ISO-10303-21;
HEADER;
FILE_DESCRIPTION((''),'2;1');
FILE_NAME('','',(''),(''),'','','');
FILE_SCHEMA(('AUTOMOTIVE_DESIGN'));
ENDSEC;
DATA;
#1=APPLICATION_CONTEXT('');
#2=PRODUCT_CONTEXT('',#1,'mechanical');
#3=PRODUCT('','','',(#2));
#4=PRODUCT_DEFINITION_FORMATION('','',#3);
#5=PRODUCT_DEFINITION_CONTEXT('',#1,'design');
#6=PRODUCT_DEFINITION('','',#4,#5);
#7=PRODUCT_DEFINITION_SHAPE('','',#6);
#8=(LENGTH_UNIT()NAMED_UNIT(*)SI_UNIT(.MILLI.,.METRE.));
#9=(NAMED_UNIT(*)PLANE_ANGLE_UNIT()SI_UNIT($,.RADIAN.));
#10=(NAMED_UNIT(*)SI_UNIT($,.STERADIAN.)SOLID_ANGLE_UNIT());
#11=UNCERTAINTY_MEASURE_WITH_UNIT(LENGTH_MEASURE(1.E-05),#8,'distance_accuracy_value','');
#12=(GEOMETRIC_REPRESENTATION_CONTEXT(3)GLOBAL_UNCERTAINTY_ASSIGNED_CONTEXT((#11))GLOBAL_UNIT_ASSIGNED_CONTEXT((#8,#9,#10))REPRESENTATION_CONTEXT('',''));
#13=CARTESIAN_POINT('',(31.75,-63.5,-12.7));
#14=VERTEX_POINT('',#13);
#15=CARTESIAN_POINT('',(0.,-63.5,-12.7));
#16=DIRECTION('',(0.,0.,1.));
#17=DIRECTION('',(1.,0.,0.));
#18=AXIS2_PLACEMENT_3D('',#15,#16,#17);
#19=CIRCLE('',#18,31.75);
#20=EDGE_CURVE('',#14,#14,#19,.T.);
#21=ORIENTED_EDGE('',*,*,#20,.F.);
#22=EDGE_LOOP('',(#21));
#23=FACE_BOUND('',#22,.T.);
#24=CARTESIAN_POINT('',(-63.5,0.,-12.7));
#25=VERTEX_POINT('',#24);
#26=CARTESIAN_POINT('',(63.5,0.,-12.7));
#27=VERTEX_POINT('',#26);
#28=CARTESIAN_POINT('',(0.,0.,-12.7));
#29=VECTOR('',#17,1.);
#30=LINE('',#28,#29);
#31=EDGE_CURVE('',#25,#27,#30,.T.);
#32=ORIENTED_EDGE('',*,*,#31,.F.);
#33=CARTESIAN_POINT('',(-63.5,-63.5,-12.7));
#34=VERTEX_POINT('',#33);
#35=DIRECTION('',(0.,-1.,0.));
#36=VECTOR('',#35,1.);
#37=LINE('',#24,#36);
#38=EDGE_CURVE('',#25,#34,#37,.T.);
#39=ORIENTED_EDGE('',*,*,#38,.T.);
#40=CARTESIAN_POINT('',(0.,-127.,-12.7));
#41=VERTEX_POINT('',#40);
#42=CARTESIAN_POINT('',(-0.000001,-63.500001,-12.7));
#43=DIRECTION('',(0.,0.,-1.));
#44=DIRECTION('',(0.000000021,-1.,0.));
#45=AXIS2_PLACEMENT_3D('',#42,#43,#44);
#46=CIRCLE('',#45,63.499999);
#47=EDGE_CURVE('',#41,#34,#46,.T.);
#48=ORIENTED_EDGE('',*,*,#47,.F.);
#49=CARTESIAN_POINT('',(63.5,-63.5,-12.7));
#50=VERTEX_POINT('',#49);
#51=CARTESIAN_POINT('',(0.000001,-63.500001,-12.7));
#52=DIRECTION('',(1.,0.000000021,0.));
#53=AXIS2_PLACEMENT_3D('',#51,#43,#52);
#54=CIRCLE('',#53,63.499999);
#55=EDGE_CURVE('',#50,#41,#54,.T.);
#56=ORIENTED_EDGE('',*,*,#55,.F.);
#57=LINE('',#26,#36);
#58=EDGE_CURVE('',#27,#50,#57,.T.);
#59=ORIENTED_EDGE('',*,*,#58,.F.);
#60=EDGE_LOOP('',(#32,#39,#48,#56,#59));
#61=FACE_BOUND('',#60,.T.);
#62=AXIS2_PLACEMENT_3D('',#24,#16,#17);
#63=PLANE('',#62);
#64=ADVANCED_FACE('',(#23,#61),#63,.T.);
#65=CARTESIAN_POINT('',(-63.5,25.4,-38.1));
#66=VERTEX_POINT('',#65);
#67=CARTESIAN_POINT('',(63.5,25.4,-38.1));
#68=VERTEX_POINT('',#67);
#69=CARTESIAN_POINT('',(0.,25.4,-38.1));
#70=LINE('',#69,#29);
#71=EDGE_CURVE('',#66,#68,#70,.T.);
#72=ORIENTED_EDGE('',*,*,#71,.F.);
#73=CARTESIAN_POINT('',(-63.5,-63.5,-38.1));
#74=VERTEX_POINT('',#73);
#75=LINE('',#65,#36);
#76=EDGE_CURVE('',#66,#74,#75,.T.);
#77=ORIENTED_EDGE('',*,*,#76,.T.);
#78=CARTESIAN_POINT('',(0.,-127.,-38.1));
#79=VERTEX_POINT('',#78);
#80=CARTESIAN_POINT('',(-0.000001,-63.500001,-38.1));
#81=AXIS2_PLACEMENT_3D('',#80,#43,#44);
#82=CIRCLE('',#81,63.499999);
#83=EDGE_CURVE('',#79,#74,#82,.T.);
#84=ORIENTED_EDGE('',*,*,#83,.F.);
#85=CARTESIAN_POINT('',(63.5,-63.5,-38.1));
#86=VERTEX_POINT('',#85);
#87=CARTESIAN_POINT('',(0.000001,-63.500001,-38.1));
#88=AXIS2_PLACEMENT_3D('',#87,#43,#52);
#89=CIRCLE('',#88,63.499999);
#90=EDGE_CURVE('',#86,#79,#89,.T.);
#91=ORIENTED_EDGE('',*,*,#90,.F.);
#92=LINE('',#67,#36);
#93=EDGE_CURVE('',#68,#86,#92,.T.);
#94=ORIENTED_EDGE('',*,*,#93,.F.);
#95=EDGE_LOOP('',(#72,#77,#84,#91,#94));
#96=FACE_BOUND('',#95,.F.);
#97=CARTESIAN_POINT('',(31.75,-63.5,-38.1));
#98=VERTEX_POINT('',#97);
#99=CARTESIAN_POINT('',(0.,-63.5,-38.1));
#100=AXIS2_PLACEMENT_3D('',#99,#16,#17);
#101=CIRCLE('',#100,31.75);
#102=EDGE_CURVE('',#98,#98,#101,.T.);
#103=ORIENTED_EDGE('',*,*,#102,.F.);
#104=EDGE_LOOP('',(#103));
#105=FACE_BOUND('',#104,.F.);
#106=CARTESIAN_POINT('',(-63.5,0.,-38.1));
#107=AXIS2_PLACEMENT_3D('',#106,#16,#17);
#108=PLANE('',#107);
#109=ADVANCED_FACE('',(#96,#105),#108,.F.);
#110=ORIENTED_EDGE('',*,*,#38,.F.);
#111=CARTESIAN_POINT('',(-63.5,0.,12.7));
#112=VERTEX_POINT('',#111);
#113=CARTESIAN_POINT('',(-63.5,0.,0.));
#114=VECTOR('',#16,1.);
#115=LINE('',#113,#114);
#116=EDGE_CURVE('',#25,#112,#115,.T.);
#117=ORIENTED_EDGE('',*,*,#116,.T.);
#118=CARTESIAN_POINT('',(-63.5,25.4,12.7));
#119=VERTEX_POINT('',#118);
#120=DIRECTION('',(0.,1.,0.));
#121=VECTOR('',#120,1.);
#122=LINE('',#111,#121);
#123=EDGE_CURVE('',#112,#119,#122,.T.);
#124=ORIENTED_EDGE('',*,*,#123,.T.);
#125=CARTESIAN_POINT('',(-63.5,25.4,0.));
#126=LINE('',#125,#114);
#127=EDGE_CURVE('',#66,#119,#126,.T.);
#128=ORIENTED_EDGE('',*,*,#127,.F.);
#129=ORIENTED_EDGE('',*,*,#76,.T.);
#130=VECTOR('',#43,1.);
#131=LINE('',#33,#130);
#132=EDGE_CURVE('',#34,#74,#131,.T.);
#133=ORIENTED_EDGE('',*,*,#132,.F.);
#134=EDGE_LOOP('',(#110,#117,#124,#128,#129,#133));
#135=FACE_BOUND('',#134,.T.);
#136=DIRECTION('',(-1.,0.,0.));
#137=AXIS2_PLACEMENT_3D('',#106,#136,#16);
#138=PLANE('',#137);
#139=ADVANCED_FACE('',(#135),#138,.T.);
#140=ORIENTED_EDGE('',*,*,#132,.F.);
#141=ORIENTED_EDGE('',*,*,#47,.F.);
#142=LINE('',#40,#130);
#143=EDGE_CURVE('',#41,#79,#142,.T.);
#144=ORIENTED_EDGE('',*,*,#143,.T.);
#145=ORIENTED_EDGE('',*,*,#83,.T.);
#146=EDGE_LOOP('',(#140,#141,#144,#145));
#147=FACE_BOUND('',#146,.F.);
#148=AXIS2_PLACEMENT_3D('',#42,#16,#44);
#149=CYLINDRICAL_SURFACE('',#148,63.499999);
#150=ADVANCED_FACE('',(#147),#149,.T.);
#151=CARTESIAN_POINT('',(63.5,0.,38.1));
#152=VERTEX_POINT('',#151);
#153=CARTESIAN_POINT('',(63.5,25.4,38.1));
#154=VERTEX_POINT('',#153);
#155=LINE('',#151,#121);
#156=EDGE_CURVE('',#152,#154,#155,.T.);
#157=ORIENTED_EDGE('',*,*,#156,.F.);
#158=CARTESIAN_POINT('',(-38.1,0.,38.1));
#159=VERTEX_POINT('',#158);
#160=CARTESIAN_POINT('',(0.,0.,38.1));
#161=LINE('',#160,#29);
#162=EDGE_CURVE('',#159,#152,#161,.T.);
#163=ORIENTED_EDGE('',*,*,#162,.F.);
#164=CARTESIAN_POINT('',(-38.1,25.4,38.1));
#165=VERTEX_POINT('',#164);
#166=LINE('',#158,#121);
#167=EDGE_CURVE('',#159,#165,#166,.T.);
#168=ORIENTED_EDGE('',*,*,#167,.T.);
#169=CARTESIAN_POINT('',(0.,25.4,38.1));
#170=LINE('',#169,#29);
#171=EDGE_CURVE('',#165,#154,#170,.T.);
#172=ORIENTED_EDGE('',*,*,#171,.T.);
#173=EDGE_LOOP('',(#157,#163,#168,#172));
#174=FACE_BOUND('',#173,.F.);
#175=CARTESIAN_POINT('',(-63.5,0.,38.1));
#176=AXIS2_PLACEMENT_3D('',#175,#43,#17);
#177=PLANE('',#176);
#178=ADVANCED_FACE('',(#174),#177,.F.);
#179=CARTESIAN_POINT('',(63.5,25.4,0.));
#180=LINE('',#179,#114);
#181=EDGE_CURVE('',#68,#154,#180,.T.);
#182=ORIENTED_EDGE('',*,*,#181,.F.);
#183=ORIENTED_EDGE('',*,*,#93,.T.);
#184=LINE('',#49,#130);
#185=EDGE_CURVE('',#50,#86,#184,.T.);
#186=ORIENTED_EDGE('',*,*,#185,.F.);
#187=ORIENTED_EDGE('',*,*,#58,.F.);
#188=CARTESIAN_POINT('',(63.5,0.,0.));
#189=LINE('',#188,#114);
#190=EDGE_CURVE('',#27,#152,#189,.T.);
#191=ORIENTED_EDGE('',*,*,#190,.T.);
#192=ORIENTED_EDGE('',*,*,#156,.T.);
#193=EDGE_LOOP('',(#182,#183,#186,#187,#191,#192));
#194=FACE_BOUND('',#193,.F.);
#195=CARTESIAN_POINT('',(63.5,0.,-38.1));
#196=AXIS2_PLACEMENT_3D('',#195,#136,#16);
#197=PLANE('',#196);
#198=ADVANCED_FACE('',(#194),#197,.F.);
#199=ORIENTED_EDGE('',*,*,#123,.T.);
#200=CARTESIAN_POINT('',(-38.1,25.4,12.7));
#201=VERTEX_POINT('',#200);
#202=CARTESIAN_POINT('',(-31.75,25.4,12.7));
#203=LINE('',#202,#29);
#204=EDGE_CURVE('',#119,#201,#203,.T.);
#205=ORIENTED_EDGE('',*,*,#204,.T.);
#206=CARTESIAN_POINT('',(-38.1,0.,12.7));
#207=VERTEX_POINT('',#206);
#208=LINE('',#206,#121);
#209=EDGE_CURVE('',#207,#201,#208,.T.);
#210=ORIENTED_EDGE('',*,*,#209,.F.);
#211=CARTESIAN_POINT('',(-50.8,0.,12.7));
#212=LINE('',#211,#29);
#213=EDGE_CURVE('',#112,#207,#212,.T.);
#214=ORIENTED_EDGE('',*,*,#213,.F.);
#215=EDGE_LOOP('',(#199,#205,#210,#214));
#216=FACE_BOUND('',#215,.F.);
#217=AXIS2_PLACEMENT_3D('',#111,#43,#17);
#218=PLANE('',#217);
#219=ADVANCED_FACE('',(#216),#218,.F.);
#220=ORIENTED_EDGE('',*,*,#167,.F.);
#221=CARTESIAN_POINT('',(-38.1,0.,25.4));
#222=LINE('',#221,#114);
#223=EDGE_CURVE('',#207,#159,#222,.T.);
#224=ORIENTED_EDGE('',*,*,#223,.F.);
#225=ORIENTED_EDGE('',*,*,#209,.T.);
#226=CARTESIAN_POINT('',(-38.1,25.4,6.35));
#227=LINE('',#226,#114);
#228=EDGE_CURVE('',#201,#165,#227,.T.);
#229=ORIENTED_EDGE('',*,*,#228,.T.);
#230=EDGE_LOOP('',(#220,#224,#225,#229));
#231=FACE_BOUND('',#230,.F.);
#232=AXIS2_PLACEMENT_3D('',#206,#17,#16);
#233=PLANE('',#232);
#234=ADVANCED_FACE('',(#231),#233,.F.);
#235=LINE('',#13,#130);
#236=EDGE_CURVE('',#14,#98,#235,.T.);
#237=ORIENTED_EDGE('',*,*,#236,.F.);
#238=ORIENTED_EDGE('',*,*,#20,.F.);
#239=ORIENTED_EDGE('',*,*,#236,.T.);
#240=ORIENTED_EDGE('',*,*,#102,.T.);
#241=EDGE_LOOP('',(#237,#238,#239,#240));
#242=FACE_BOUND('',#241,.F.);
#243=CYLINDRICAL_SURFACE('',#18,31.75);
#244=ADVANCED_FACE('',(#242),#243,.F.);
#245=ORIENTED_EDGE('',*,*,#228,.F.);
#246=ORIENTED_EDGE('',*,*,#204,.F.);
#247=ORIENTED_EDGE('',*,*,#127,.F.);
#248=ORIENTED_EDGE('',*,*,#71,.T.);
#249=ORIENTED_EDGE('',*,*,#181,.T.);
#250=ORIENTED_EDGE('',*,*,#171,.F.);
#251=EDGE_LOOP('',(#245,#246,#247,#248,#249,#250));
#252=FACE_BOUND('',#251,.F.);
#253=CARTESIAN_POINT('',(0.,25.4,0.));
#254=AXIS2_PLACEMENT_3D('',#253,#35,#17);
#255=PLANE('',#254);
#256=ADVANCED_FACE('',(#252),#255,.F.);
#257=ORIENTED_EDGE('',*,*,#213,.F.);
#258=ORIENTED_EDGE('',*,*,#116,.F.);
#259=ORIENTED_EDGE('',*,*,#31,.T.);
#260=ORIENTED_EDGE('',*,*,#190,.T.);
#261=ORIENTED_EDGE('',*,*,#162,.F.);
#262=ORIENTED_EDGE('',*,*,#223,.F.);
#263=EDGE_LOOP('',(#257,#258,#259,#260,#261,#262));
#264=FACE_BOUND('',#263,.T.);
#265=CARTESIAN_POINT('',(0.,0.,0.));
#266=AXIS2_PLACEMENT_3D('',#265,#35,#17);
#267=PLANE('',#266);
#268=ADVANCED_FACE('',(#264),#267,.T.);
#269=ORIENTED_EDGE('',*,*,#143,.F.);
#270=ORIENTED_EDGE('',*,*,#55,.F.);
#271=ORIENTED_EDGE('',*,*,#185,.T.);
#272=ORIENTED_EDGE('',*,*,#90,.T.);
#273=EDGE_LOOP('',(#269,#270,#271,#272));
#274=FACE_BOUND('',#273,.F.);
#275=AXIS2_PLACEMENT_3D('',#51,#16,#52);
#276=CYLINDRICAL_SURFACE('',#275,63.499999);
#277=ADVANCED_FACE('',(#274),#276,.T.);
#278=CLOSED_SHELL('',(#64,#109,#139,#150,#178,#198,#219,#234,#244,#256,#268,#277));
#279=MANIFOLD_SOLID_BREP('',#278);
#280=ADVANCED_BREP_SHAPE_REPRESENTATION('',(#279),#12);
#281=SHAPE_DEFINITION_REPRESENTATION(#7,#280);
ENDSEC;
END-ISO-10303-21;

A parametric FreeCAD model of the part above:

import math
import FreeCAD as App
import Part
import Sketcher

V = App.Vector
Q = App.Units.Quantity


def add_polygon(sketch, points):
    """Adds a closed chain of lines whose ends are joined by coincident constraints."""
    first, n = sketch.GeometryCount, len(points)
    for a, b in zip(points, points[1:] + points[:1]):
        sketch.addGeometry(Part.LineSegment(App.Vector(*a, 0), App.Vector(*b, 0)), False)
    for i in range(n):
        sketch.addConstraint(Sketcher.Constraint("Coincident", first + i, 2, first + (i + 1) % n, 1))

doc = App.newDocument("Part")
body = doc.addObject("PartDesign::Body", "Body")

sketch1 = doc.addObject("Sketcher::SketchObject", "Sketch")
body.addObject(sketch1)
sketch1.AttachmentSupport = (doc.XZ_Plane, [""])
sketch1.MapMode = "FlatFace"
add_polygon(sketch1, [(-64, 38), (-64, -38), (64, -38), (64, 38)])
sketch1.addConstraint([
    Sketcher.Constraint("Vertical", 0),
    Sketcher.Constraint("Horizontal", 1),
    Sketcher.Constraint("Vertical", 2),
    Sketcher.Constraint("Horizontal", 3),
    Sketcher.Constraint("Symmetric", 0, 2, 2, 2, -1, 1),
    Sketcher.Constraint("DistanceX", 1, 1, 1, 2, Q("5 in")),
    Sketcher.Constraint("DistanceY", 0, 2, 0, 1, Q("3 in")),
])
pad1 = doc.addObject("PartDesign::Pad", "Pad")
body.addObject(pad1)
pad1.Profile = sketch1
pad1.Length = Q("1 in")
pad1.Reversed = True

sketch2 = doc.addObject("Sketcher::SketchObject", "Sketch001")
body.addObject(sketch2)
sketch2.AttachmentSupport = (doc.XZ_Plane, [""])
sketch2.MapMode = "FlatFace"
add_polygon(sketch2, [(-64, -13), (-64, -38), (64, -38), (64, -13)])
sketch2.addConstraint([
    Sketcher.Constraint("Vertical", 0),
    Sketcher.Constraint("Horizontal", 1),
    Sketcher.Constraint("Vertical", 2),
    Sketcher.Constraint("Horizontal", 3),
    Sketcher.Constraint("DistanceX", 1, 1, 1, 2, Q("5 in")),
    Sketcher.Constraint("DistanceY", 0, 2, 0, 1, Q("1 in")),
    Sketcher.Constraint("DistanceX", 0, 2, -1, 1, Q("2.5 in")),
    Sketcher.Constraint("DistanceY", 0, 2, -1, 1, Q("1.5 in")),
])
pad2 = doc.addObject("PartDesign::Pad", "Pad001")
body.addObject(pad2)
pad2.Profile = sketch2
pad2.Length = Q("5 in")

sketch3 = doc.addObject("Sketcher::SketchObject", "Sketch002")
body.addObject(sketch3)
sketch3.AttachmentSupport = (doc.XY_Plane, [""])
sketch3.MapMode = "FlatFace"
sketch3.AttachmentOffset = App.Placement(V(0, 0, -0.5 * 25.4), App.Rotation())
sketch3.addGeometry([
    Part.LineSegment(V(-64, -127, 0), V(0, -127, 0)),
    Part.ArcOfCircle(Part.Circle(V(0, -64, 0), V(0, 0, 1), 63), math.radians(180), math.radians(270)),
    Part.LineSegment(V(-64, -64, 0), V(-64, -127, 0)),
    Part.ArcOfCircle(Part.Circle(V(0, -64, 0), V(0, 0, 1), 63), math.radians(-90), math.radians(0)),
    Part.LineSegment(V(0, -127, 0), V(64, -127, 0)),
    Part.LineSegment(V(64, -127, 0), V(64, -64, 0)),
], False)
sketch3.addConstraint([
    Sketcher.Constraint("Tangent", 0, 2, 1, 2),
    Sketcher.Constraint("Tangent", 1, 1, 2, 1),
    Sketcher.Constraint("Coincident", 2, 2, 0, 1),
    Sketcher.Constraint("Tangent", 3, 1, 4, 1),
    Sketcher.Constraint("Coincident", 4, 2, 5, 1),
    Sketcher.Constraint("Tangent", 5, 2, 3, 2),
    Sketcher.Constraint("Horizontal", 0),
    Sketcher.Constraint("Vertical", 2),
    Sketcher.Constraint("Horizontal", 4),
    Sketcher.Constraint("Vertical", 5),
    Sketcher.Constraint("Coincident", 3, 3, 1, 3),
    Sketcher.Constraint("Equal", 1, 3),
    Sketcher.Constraint("PointOnObject", 1, 3, -2),
    Sketcher.Constraint("Radius", 1, Q("2.4999999 in")),
    Sketcher.Constraint("DistanceY", 0, 2, -1, 1, Q("5 in")),
])
pocket1 = doc.addObject("PartDesign::Pocket", "Pocket")
body.addObject(pocket1)
pocket1.Profile = sketch3
pocket1.Length = Q("1 in")

sketch4 = doc.addObject("Sketcher::SketchObject", "Sketch003")
body.addObject(sketch4)
sketch4.AttachmentSupport = (doc.XY_Plane, [""])
sketch4.MapMode = "FlatFace"
sketch4.AttachmentOffset = App.Placement(V(0, 0, -0.5 * 25.4), App.Rotation())
sketch4.addGeometry(Part.Circle(V(0, -64, 0), V(0, 0, 1), 32), False)
sketch4.addConstraint([
    Sketcher.Constraint("PointOnObject", 0, 3, -2),
    Sketcher.Constraint("Diameter", 0, Q("2.5 in")),
    Sketcher.Constraint("DistanceY", 0, 3, -1, 1, Q("2.5 in")),
])
pocket2 = doc.addObject("PartDesign::Pocket", "Pocket001")
body.addObject(pocket2)
pocket2.Profile = sketch4
pocket2.Type = "ThroughAll"

sketch5 = doc.addObject("Sketcher::SketchObject", "Sketch004")
body.addObject(sketch5)
sketch5.AttachmentSupport = (doc.XZ_Plane, [""])
sketch5.MapMode = "FlatFace"
add_polygon(sketch5, [(-64, 38), (-64, 13), (-38, 13), (-38, 38)])
sketch5.addConstraint([
    Sketcher.Constraint("Vertical", 0),
    Sketcher.Constraint("Horizontal", 1),
    Sketcher.Constraint("Vertical", 2),
    Sketcher.Constraint("Horizontal", 3),
    Sketcher.Constraint("Equal", 3, 0),
    Sketcher.Constraint("DistanceX", 1, 1, 1, 2, Q("1 in")),
    Sketcher.Constraint("DistanceX", 0, 2, -1, 1, Q("2.5 in")),
    Sketcher.Constraint("DistanceY", -1, 1, 0, 2, Q("0.5 in")),
])
pocket3 = doc.addObject("PartDesign::Pocket", "Pocket002")
body.addObject(pocket3)
pocket3.Profile = sketch5
pocket3.Type = "ThroughAll"

doc.recompute()
